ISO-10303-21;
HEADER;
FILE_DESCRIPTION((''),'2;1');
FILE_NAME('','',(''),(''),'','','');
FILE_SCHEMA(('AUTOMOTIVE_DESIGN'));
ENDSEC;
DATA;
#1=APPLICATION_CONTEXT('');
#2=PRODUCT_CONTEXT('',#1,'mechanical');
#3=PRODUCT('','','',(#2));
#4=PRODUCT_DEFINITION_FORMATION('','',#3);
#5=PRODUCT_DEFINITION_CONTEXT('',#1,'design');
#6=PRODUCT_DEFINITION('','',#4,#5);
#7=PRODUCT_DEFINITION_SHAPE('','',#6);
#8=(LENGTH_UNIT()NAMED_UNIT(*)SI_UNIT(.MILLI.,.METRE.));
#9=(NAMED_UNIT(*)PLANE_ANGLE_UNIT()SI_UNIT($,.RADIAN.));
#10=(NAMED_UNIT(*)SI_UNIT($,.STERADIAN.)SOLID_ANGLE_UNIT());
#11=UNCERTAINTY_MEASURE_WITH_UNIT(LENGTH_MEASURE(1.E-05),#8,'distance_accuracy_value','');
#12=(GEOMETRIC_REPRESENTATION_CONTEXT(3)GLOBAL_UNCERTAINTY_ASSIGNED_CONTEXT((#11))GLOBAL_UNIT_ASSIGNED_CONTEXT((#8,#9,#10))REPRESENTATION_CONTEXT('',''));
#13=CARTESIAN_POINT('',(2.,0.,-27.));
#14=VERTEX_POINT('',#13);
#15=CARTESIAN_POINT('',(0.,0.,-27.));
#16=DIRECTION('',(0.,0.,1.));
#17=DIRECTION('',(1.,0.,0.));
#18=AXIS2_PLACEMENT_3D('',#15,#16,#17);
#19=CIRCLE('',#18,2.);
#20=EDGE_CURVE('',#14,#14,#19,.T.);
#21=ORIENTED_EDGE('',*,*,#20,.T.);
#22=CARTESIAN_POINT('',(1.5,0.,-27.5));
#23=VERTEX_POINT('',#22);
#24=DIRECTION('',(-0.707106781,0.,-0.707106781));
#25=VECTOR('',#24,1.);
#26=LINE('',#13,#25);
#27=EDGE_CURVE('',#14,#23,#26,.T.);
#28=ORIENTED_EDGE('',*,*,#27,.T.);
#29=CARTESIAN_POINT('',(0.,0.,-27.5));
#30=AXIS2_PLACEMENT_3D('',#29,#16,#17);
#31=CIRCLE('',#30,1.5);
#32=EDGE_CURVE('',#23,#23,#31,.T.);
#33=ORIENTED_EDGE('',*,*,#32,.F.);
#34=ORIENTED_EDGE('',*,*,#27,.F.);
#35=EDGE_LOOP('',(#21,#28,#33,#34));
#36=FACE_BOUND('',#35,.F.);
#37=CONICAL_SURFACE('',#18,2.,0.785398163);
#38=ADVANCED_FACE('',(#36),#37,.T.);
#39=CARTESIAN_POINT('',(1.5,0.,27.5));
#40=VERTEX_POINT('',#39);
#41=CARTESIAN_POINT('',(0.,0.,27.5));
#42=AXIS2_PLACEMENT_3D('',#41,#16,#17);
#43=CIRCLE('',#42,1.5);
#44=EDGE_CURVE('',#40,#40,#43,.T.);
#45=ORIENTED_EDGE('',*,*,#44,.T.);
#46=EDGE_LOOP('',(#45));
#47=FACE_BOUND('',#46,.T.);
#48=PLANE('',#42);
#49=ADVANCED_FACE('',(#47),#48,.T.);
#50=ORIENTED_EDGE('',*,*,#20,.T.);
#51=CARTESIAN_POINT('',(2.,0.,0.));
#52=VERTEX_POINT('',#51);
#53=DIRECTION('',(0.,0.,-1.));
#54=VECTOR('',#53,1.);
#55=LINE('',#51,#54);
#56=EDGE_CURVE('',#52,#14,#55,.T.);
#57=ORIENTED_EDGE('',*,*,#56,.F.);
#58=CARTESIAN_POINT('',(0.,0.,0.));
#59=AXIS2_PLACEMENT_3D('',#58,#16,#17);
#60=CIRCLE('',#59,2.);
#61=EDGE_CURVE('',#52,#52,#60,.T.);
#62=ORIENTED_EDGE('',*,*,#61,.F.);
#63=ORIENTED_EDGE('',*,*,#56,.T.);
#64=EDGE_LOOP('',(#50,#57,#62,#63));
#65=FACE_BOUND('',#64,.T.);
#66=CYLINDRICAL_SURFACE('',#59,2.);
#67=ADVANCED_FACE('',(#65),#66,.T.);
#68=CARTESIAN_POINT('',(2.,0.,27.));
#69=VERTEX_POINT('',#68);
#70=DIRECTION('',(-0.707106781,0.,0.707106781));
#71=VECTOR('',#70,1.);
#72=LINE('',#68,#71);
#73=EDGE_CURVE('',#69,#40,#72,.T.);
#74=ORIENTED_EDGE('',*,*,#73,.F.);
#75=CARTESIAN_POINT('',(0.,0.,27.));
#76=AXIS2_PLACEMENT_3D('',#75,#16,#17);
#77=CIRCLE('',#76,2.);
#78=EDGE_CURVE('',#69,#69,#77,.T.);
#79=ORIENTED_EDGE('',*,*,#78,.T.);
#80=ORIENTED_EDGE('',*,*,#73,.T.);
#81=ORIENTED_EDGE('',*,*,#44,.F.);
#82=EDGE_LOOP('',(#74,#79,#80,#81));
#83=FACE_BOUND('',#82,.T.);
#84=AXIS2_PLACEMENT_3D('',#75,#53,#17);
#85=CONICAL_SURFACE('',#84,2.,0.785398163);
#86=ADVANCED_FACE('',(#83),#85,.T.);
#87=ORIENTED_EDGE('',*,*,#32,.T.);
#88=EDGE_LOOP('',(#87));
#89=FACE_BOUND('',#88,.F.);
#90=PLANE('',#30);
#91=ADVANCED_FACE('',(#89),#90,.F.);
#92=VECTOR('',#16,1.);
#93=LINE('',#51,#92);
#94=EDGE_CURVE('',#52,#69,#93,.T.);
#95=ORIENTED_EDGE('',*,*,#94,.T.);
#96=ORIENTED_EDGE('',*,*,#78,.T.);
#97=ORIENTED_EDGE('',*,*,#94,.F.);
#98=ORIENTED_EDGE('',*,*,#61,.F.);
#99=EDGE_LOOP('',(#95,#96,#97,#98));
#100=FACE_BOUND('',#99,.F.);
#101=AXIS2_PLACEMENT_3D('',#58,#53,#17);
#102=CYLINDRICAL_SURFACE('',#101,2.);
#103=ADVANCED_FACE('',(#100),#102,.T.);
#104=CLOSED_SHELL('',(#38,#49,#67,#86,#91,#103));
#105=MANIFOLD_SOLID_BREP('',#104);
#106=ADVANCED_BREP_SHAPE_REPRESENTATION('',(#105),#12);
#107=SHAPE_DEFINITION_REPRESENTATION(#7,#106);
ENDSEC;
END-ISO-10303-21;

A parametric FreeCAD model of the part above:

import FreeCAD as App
import Part
import Sketcher

V = App.Vector


def edges_at(feature, points):
    """Names of the edges that pass closest to the given points."""
    edges = feature.Shape.Edges
    near = lambda p: min(range(len(edges)), key=lambda i: edges[i].distToShape(Part.Vertex(*p))[0])
    return sorted({f"Edge{near(p) + 1}" for p in points})

doc = App.newDocument("Part")
body = doc.addObject("PartDesign::Body", "Body")

sketch1 = body.newObject("Sketcher::SketchObject", "Sketch")
sketch1.AttachmentSupport = (doc.getObject("XY_Plane"), [""])
sketch1.MapMode = "FlatFace"
sketch1.addGeometry(Part.Circle(V(0, 0, 0), V(0, 0, 1), 2), False)
sketch1.addConstraint(Sketcher.Constraint("Coincident", 0, 3, -1, 1))
sketch1.addConstraint(Sketcher.Constraint("Diameter", 0, 4.0))
pad1 = body.newObject("PartDesign::Pad", "Pad")
pad1.Profile = sketch1
pad1.Length = 55
pad1.Midplane = True
doc.recompute()

chamfer = body.newObject("PartDesign::Chamfer", "Chamfer")
chamfer.Base = (pad1, edges_at(pad1, [(-2, 0, 27.5), (-2, 0, -27.5)]))
chamfer.Size = 0.5

doc.recompute()
